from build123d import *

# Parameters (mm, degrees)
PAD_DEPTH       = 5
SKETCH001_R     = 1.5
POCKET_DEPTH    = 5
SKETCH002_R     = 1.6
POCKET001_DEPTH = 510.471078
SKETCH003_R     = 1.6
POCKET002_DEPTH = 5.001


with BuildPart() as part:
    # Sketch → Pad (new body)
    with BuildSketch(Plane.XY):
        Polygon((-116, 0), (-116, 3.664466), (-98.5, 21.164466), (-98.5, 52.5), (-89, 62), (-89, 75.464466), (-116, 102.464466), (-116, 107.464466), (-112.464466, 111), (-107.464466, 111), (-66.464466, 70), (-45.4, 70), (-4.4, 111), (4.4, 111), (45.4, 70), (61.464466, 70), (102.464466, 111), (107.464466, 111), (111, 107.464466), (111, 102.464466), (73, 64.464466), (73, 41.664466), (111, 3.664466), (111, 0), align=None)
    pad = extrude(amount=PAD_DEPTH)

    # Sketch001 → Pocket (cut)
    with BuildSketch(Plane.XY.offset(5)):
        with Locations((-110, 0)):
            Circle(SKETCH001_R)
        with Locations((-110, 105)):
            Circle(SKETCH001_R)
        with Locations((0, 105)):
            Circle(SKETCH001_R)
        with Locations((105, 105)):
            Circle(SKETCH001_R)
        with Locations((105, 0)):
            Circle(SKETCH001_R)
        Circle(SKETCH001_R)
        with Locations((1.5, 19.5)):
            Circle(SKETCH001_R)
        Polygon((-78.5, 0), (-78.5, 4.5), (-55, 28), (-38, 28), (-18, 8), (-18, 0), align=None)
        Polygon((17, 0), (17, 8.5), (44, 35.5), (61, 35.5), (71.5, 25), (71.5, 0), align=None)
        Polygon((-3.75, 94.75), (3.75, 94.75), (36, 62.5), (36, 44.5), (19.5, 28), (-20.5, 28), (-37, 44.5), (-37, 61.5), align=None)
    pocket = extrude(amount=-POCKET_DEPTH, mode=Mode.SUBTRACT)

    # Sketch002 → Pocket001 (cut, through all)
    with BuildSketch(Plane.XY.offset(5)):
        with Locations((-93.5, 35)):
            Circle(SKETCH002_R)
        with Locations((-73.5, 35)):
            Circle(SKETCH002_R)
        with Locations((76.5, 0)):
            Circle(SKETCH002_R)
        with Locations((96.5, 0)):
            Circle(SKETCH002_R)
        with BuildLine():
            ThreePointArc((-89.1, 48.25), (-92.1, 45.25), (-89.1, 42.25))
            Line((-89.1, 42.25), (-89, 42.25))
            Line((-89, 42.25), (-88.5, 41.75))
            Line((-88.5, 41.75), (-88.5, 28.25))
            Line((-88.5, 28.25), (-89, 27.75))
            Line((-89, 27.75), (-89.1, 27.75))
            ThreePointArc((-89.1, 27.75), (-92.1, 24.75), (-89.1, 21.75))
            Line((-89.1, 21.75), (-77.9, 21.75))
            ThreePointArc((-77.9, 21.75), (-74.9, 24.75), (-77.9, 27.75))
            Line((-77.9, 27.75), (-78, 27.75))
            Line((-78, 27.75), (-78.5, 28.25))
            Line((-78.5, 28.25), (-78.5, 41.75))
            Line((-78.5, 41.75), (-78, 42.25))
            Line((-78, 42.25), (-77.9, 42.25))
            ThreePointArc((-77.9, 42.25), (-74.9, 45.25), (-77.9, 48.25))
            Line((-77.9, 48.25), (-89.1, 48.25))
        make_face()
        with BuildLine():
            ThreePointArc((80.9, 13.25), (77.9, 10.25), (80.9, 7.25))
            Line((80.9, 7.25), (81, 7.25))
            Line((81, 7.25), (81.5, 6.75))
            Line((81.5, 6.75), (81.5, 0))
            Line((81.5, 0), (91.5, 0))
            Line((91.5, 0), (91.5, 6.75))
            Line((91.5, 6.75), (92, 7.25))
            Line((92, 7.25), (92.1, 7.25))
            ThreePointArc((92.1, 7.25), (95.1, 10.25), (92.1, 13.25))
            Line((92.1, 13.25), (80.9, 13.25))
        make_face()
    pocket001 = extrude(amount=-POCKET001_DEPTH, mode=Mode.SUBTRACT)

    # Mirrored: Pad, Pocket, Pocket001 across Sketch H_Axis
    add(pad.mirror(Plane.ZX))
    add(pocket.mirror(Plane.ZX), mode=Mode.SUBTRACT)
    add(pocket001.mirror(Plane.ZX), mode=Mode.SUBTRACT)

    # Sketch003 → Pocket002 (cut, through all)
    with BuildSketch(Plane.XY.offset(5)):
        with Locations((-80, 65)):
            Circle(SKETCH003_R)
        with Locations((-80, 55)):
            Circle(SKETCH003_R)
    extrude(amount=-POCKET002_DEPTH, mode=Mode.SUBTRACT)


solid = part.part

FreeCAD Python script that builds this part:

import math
import FreeCAD as App
import Part
import Sketcher

V = App.Vector

doc = App.newDocument("Part")
body = doc.addObject("PartDesign::Body", "Body")

# Sketch on XY plane
sketch1 = doc.addObject("Sketcher::SketchObject", "Sketch")
body.addObject(sketch1)
sketch1.AttachmentSupport = (doc.XY_Plane, [""])
sketch1.MapMode = "FlatFace"
sketch1.addGeometry([
    Part.LineSegment(V(-116, 3.7, 0), V(-116, 0, 0)),  # 0
    Part.LineSegment(V(-116, 0, 0), V(111, 0, 0)),  # 1
    Part.LineSegment(V(111, 0, 0), V(111, 3.7, 0)),  # 2
    Part.LineSegment(V(111, 3.7, 0), V(73, 41.7, 0)),  # 3
    Part.LineSegment(V(73, 41.7, 0), V(73, 64.5, 0)),  # 4
    Part.LineSegment(V(73, 64.5, 0), V(111, 102.5, 0)),  # 5
    Part.LineSegment(V(111, 102.5, 0), V(111, 107.5, 0)),  # 6
    Part.LineSegment(V(111, 107.5, 0), V(107.5, 111, 0)),  # 7
    Part.LineSegment(V(107.5, 111, 0), V(102.5, 111, 0)),  # 8
    Part.LineSegment(V(102.5, 111, 0), V(61.5, 70, 0)),  # 9
    Part.LineSegment(V(61.5, 70, 0), V(45.4, 70, 0)),  # 10
    Part.LineSegment(V(45.4, 70, 0), V(4.4, 111, 0)),  # 11
    Part.LineSegment(V(4.4, 111, 0), V(-4.4, 111, 0)),  # 12
    Part.LineSegment(V(-4.4, 111, 0), V(-45.4, 70, 0)),  # 13
    Part.LineSegment(V(-45.4, 70, 0), V(-66.5, 70, 0)),  # 14
    Part.LineSegment(V(-66.5, 70, 0), V(-107.5, 111, 0)),  # 15
    Part.LineSegment(V(-107.5, 111, 0), V(-112.5, 111, 0)),  # 16
    Part.LineSegment(V(-112.5, 111, 0), V(-116, 107.5, 0)),  # 17
    Part.LineSegment(V(-116, 107.5, 0), V(-116, 102.5, 0)),  # 18
    Part.LineSegment(V(-116, 102.5, 0), V(-89, 75.5, 0)),  # 19
    Part.LineSegment(V(-89, 75.5, 0), V(-89, 62, 0)),  # 20
    Part.LineSegment(V(-89, 62, 0), V(-98.5, 52.5, 0)),  # 21
    Part.LineSegment(V(-98.5, 52.5, 0), V(-98.5, 21.2, 0)),  # 22
    Part.LineSegment(V(-98.5, 21.2, 0), V(-116, 3.7, 0)),  # 23
], False)
sketch1.addConstraint([
    Sketcher.Constraint("Coincident", 0, 2, 1, 1),
    Sketcher.Constraint("Coincident", 1, 2, 2, 1),
    Sketcher.Constraint("Coincident", 2, 2, 3, 1),
    Sketcher.Constraint("Coincident", 3, 2, 4, 1),
    Sketcher.Constraint("Coincident", 4, 2, 5, 1),
    Sketcher.Constraint("Coincident", 5, 2, 6, 1),
    Sketcher.Constraint("Coincident", 6, 2, 7, 1),
    Sketcher.Constraint("Coincident", 7, 2, 8, 1),
    Sketcher.Constraint("Coincident", 8, 2, 9, 1),
    Sketcher.Constraint("Coincident", 9, 2, 10, 1),
    Sketcher.Constraint("Coincident", 10, 2, 11, 1),
    Sketcher.Constraint("Coincident", 11, 2, 12, 1),
    Sketcher.Constraint("Coincident", 12, 2, 13, 1),
    Sketcher.Constraint("Coincident", 13, 2, 14, 1),
    Sketcher.Constraint("Coincident", 14, 2, 15, 1),
    Sketcher.Constraint("Coincident", 15, 2, 16, 1),
    Sketcher.Constraint("Coincident", 16, 2, 17, 1),
    Sketcher.Constraint("Coincident", 17, 2, 18, 1),
    Sketcher.Constraint("Coincident", 18, 2, 19, 1),
    Sketcher.Constraint("Coincident", 19, 2, 20, 1),
    Sketcher.Constraint("Coincident", 20, 2, 21, 1),
    Sketcher.Constraint("Coincident", 21, 2, 22, 1),
    Sketcher.Constraint("Coincident", 22, 2, 23, 1),
    Sketcher.Constraint("Coincident", 23, 2, 0, 1),
    Sketcher.Constraint("Vertical", 0),
    Sketcher.Constraint("Horizontal", 1),
    Sketcher.Constraint("Vertical", 2),
    Sketcher.Constraint("Vertical", 4),
    Sketcher.Constraint("Vertical", 6),
    Sketcher.Constraint("Horizontal", 8),
    Sketcher.Constraint("Horizontal", 10),
    Sketcher.Constraint("Horizontal", 12),
    Sketcher.Constraint("Horizontal", 14),
    Sketcher.Constraint("Horizontal", 16),
    Sketcher.Constraint("Vertical", 18),
    Sketcher.Constraint("Vertical", 20),
    Sketcher.Constraint("Vertical", 22),
    Sketcher.Constraint("Symmetric", 10, 2, 13, 2, -2),
    Sketcher.Constraint("Symmetric", 7, 2, 15, 2, -2),
    Sketcher.Constraint("PointOnObject", 0, 2, -1),
    Sketcher.Constraint("Perpendicular", 3, 5),
    Sketcher.Constraint("Perpendicular", 5, 7),
    Sketcher.Constraint("Perpendicular", 7, 9),
    Sketcher.Constraint("Perpendicular", 9, 11),
    Sketcher.Constraint("Perpendicular", 11, 13),
    Sketcher.Constraint("Perpendicular", 13, 15),
    Sketcher.Constraint("Perpendicular", 15, 17),
    Sketcher.Constraint("Perpendicular", 17, 19),
    Sketcher.Constraint("Perpendicular", 19, 21),
    Sketcher.Constraint("Parallel", 21, 23),
    Sketcher.Constraint("Horizontal", 8, 2, 11, 2),
    Sketcher.Constraint("Horizontal", 6, 2, 17, 2),
    Sketcher.Constraint("Horizontal", 5, 2, 18, 2),
    Sketcher.Constraint("Horizontal", 2, 2, 23, 2),
    Sketcher.Constraint("Vertical", 2, 2, 5, 2),
    Sketcher.Constraint("Vertical", 0, 2, 17, 2),
    Sketcher.Constraint("Equal", 8, 16),
    Sketcher.Constraint("Equal", 16, 6),
    Sketcher.Constraint("Equal", 3, 5),
    Sketcher.Constraint("DistanceX", 1, 1, 1, 2, 227.0),
    Sketcher.Constraint("DistanceX", 8, 2, 8, 1, 5.0),
    Sketcher.Constraint("Distance", 7, 5.0),
    Sketcher.Constraint("DistanceX", 12, 2, 12, 1, 8.8),
    Sketcher.Constraint("DistanceY", 4, 1, 4, 2, 22.8),
    Sketcher.Constraint("DistanceX", -1, 1, 3, 2, 73.0),
    Sketcher.Constraint("DistanceY", -1, 1, 7, 2, 111.0),
    Sketcher.Constraint("DistanceY", -1, 1, 9, 2, 70.0),
    Sketcher.Constraint("DistanceX", 19, 2, -1, 1, 89.0),
    Sketcher.Constraint("DistanceY", -1, 1, 20, 2, 62.0),
    Sketcher.Constraint("DistanceX", 21, 2, -1, 1, 98.5),
])
pad1 = doc.addObject("PartDesign::Pad", "Pad")
body.addObject(pad1)
pad1.Profile = sketch1
pad1.Length = 5

# Sketch on XY plane
sketch2 = doc.addObject("Sketcher::SketchObject", "Sketch001")
body.addObject(sketch2)
sketch2.AttachmentSupport = (doc.XY_Plane, [""])
sketch2.MapMode = "FlatFace"
sketch2.AttachmentOffset = App.Placement(V(0, 0, 5), App.Rotation())
sketch2.addGeometry([
    Part.Circle(V(-110, 0, 0), V(0, 0, 1), 1.5),  # 0
    Part.Circle(V(-110, 105, 0), V(0, 0, 1), 1.5),  # 1
    Part.Circle(V(0, 105, 0), V(0, 0, 1), 1.5),  # 2
    Part.Circle(V(105, 105, 0), V(0, 0, 1), 1.5),  # 3
    Part.Circle(V(105, 0, 0), V(0, 0, 1), 1.5),  # 4
    Part.Circle(V(0, 0, 0), V(0, 0, 1), 1.5),  # 5
    Part.Circle(V(1.5, 19.5, 0), V(0, 0, 1), 1.5),  # 6
    Part.LineSegment(V(-78.5, 4.5, 0), V(-78.5, 0, 0)),  # 7
    Part.LineSegment(V(-78.5, 0, 0), V(-18, 0, 0)),  # 8
    Part.LineSegment(V(-18, 0, 0), V(-18, 8, 0)),  # 9
    Part.LineSegment(V(-18, 8, 0), V(-38, 28, 0)),  # 10
    Part.LineSegment(V(-38, 28, 0), V(-55, 28, 0)),  # 11
    Part.LineSegment(V(-55, 28, 0), V(-78.5, 4.5, 0)),  # 12
    Part.LineSegment(V(17, 8.5, 0), V(17, 0, 0)),  # 13
    Part.LineSegment(V(17, 0, 0), V(71.5, 0, 0)),  # 14
    Part.LineSegment(V(71.5, 0, 0), V(71.5, 25, 0)),  # 15
    Part.LineSegment(V(71.5, 25, 0), V(61, 35.5, 0)),  # 16
    Part.LineSegment(V(61, 35.5, 0), V(44, 35.5, 0)),  # 17
    Part.LineSegment(V(44, 35.5, 0), V(17, 8.5, 0)),  # 18
    Part.LineSegment(V(3.8, 94.8, 0), V(-3.8, 94.8, 0)),  # 19
    Part.LineSegment(V(-3.8, 94.8, 0), V(-37, 61.5, 0)),  # 20
    Part.LineSegment(V(-37, 61.5, 0), V(-37, 44.5, 0)),  # 21
    Part.LineSegment(V(-37, 44.5, 0), V(-20.5, 28, 0)),  # 22
    Part.LineSegment(V(-20.5, 28, 0), V(19.5, 28, 0)),  # 23
    Part.LineSegment(V(19.5, 28, 0), V(36, 44.5, 0)),  # 24
    Part.LineSegment(V(36, 44.5, 0), V(36, 62.5, 0)),  # 25
    Part.LineSegment(V(36, 62.5, 0), V(3.8, 94.8, 0)),  # 26
], False)
sketch2.addConstraint([
    Sketcher.Constraint("Coincident", 7, 2, 8, 1),
    Sketcher.Constraint("Coincident", 8, 2, 9, 1),
    Sketcher.Constraint("Coincident", 9, 2, 10, 1),
    Sketcher.Constraint("Coincident", 10, 2, 11, 1),
    Sketcher.Constraint("Coincident", 11, 2, 12, 1),
    Sketcher.Constraint("Coincident", 12, 2, 7, 1),
    Sketcher.Constraint("Coincident", 13, 2, 14, 1),
    Sketcher.Constraint("Coincident", 14, 2, 15, 1),
    Sketcher.Constraint("Coincident", 15, 2, 16, 1),
    Sketcher.Constraint("Coincident", 16, 2, 17, 1),
    Sketcher.Constraint("Coincident", 17, 2, 18, 1),
    Sketcher.Constraint("Coincident", 18, 2, 13, 1),
    Sketcher.Constraint("Coincident", 19, 2, 20, 1),
    Sketcher.Constraint("Coincident", 20, 2, 21, 1),
    Sketcher.Constraint("Coincident", 21, 2, 22, 1),
    Sketcher.Constraint("Coincident", 22, 2, 23, 1),
    Sketcher.Constraint("Coincident", 23, 2, 24, 1),
    Sketcher.Constraint("Coincident", 24, 2, 25, 1),
    Sketcher.Constraint("Coincident", 25, 2, 26, 1),
    Sketcher.Constraint("Coincident", 26, 2, 19, 1),
    Sketcher.Constraint("Vertical", 7),
    Sketcher.Constraint("Horizontal", 8),
    Sketcher.Constraint("Vertical", 9),
    Sketcher.Constraint("Horizontal", 11),
    Sketcher.Constraint("Vertical", 13),
    Sketcher.Constraint("Horizontal", 14),
    Sketcher.Constraint("Vertical", 15),
    Sketcher.Constraint("Horizontal", 17),
    Sketcher.Constraint("Horizontal", 19),
    Sketcher.Constraint("Vertical", 21),
    Sketcher.Constraint("Horizontal", 23),
    Sketcher.Constraint("Vertical", 25),
    Sketcher.Constraint("Coincident", 5, 3, -1, 1),
    Sketcher.Constraint("Equal", 0, 1),
    Sketcher.Constraint("Equal", 1, 2),
    Sketcher.Constraint("Equal", 2, 3),
    Sketcher.Constraint("Equal", 3, 4),
    Sketcher.Constraint("Equal", 4, 5),
    Sketcher.Constraint("Equal", 5, 6),
    Sketcher.Constraint("PointOnObject", 0, 3, -1),
    Sketcher.Constraint("PointOnObject", 2, 3, -2),
    Sketcher.Constraint("PointOnObject", 4, 3, -1),
    Sketcher.Constraint("PointOnObject", 7, 2, -1),
    Sketcher.Constraint("PointOnObject", 13, 2, -1),
    Sketcher.Constraint("Perpendicular", 10, 12),
    Sketcher.Constraint("Perpendicular", 12, 16),
    Sketcher.Constraint("Perpendicular", 16, 18),
    Sketcher.Constraint("Parallel", 18, 20),
    Sketcher.Constraint("Perpendicular", 20, 22),
    Sketcher.Constraint("Perpendicular", 22, 24),
    Sketcher.Constraint("Perpendicular", 24, 26),
    Sketcher.Constraint("Horizontal", 1, 3, 2, 3),
    Sketcher.Constraint("Horizontal", 2, 3, 3, 3),
    Sketcher.Constraint("Horizontal", 11, 2, 22, 2),
    Sketcher.Constraint("Horizontal", 21, 2, 24, 2),
    Sketcher.Constraint("Vertical", 0, 3, 1, 3),
    Sketcher.Constraint("Vertical", 3, 3, 4, 3),
    Sketcher.Constraint("Equal", 11, 17),
    Sketcher.Constraint("Equal", 17, 21),
    Sketcher.Constraint("Equal", 22, 24),
    Sketcher.Constraint("Diameter", 0, 3.0),
    Sketcher.Constraint("DistanceX", 11, 2, 11, 1, 17.0),
    Sketcher.Constraint("DistanceX", 23, 1, 23, 2, 40.0),
    Sketcher.Constraint("DistanceY", 9, 1, 9, 2, 8.0),
    Sketcher.Constraint("DistanceY", 15, 1, 15, 2, 25.0),
    Sketcher.Constraint("DistanceY", 25, 1, 25, 2, 18.0),
    Sketcher.Constraint("DistanceX", 8, 1, 8, 2, 60.5),
    Sketcher.Constraint("DistanceX", 14, 1, 14, 2, 54.5),
    Sketcher.Constraint("DistanceX", 19, 2, 19, 1, 7.5),
    Sketcher.Constraint("DistanceY", 7, 2, 7, 1, 4.5),
    Sketcher.Constraint("DistanceY", 13, 2, 13, 1, 8.5),
    Sketcher.Constraint("DistanceX", 0, 3, -1, 1, 110.0),
    Sketcher.Constraint("DistanceY", -1, 1, 1, 3, 105.0),
    Sketcher.Constraint("DistanceX", -1, 1, 3, 3, 105.0),
    Sketcher.Constraint("DistanceX", 8, 2, -1, 1, 18.0),
    Sketcher.Constraint("DistanceX", -1, 1, 13, 2, 17.0),
    Sketcher.Constraint("DistanceX", 20, 2, -1, 1, 37.0),
    Sketcher.Constraint("DistanceX", -1, 1, 24, 2, 36.0),
    Sketcher.Constraint("DistanceX", 7, 2, 6, 3, 80.0),
    Sketcher.Constraint("DistanceY", 6, 3, 16, 2, 16.0),
])
pocket1 = doc.addObject("PartDesign::Pocket", "Pocket")
body.addObject(pocket1)
pocket1.Profile = sketch2
pocket1.Length = 5

# Sketch on XY plane
sketch3 = doc.addObject("Sketcher::SketchObject", "Sketch002")
body.addObject(sketch3)
sketch3.AttachmentSupport = (doc.XY_Plane, [""])
sketch3.MapMode = "FlatFace"
sketch3.AttachmentOffset = App.Placement(V(0, 0, 5), App.Rotation())
sketch3.addGeometry([
    Part.Circle(V(-93.5, 35, 0), V(0, 0, 1), 1.6),  # 0
    Part.Circle(V(-73.5, 35, 0), V(0, 0, 1), 1.6),  # 1
    Part.Circle(V(76.5, 0, 0), V(0, 0, 1), 1.6),  # 2
    Part.Circle(V(96.5, 0, 0), V(0, 0, 1), 1.6),  # 3
    Part.ArcOfCircle(Part.Circle(V(-89.1, 45.25, 0), V(0, 0, 1), 3), math.radians(90), math.radians(270)),  # 4
    Part.LineSegment(V(-89.1, 42.25, 0), V(-89, 42.25, 0)),  # 5
    Part.LineSegment(V(-89, 42.25, 0), V(-88.5, 41.75, 0)),  # 6
    Part.LineSegment(V(-88.5, 41.75, 0), V(-88.5, 28.25, 0)),  # 7
    Part.LineSegment(V(-88.5, 28.25, 0), V(-89, 27.75, 0)),  # 8
    Part.LineSegment(V(-89, 27.75, 0), V(-89.1, 27.75, 0)),  # 9
    Part.ArcOfCircle(Part.Circle(V(-89.1, 24.75, 0), V(0, 0, 1), 3), math.radians(90), math.radians(270)),  # 10
    Part.LineSegment(V(-89.1, 21.75, 0), V(-77.9, 21.75, 0)),  # 11
    Part.ArcOfCircle(Part.Circle(V(-77.9, 24.75, 0), V(0, 0, 1), 3), math.radians(-90), math.radians(90)),  # 12
    Part.LineSegment(V(-77.9, 27.75, 0), V(-78, 27.75, 0)),  # 13
    Part.LineSegment(V(-78, 27.75, 0), V(-78.5, 28.25, 0)),  # 14
    Part.LineSegment(V(-78.5, 28.25, 0), V(-78.5, 41.75, 0)),  # 15
    Part.LineSegment(V(-78.5, 41.75, 0), V(-78, 42.25, 0)),  # 16
    Part.LineSegment(V(-78, 42.25, 0), V(-77.9, 42.25, 0)),  # 17
    Part.ArcOfCircle(Part.Circle(V(-77.9, 45.25, 0), V(0, 0, 1), 3), math.radians(-90), math.radians(90)),  # 18
    Part.LineSegment(V(-77.9, 48.25, 0), V(-89.1, 48.25, 0)),  # 19
    Part.ArcOfCircle(Part.Circle(V(80.9, 10.25, 0), V(0, 0, 1), 3), math.radians(90), math.radians(270)),  # 20
    Part.LineSegment(V(80.9, 7.25, 0), V(81, 7.25, 0)),  # 21
    Part.LineSegment(V(81, 7.25, 0), V(81.5, 6.75, 0)),  # 22
    Part.LineSegment(V(81.5, 6.75, 0), V(81.5, 0, 0)),  # 23
    Part.LineSegment(V(81.5, 0, 0), V(91.5, 0, 0)),  # 24
    Part.LineSegment(V(91.5, 0, 0), V(91.5, 6.75, 0)),  # 25
    Part.LineSegment(V(91.5, 6.75, 0), V(92, 7.25, 0)),  # 26
    Part.LineSegment(V(92, 7.25, 0), V(92.1, 7.25, 0)),  # 27
    Part.ArcOfCircle(Part.Circle(V(92.1, 10.25, 0), V(0, 0, 1), 3), math.radians(-90), math.radians(90)),  # 28
    Part.LineSegment(V(92.1, 13.25, 0), V(80.9, 13.25, 0)),  # 29
], False)
sketch3.addConstraint([
    Sketcher.Constraint("Tangent", 4, 2, 5, 1),
    Sketcher.Constraint("Coincident", 5, 2, 6, 1),
    Sketcher.Constraint("Coincident", 6, 2, 7, 1),
    Sketcher.Constraint("Coincident", 7, 2, 8, 1),
    Sketcher.Constraint("Coincident", 8, 2, 9, 1),
    Sketcher.Constraint("Tangent", 9, 2, 10, 1),
    Sketcher.Constraint("Tangent", 10, 2, 11, 1),
    Sketcher.Constraint("Tangent", 11, 2, 12, 1),
    Sketcher.Constraint("Tangent", 12, 2, 13, 1),
    Sketcher.Constraint("Coincident", 13, 2, 14, 1),
    Sketcher.Constraint("Coincident", 14, 2, 15, 1),
    Sketcher.Constraint("Coincident", 15, 2, 16, 1),
    Sketcher.Constraint("Coincident", 16, 2, 17, 1),
    Sketcher.Constraint("Tangent", 17, 2, 18, 1),
    Sketcher.Constraint("Tangent", 18, 2, 19, 1),
    Sketcher.Constraint("Tangent", 19, 2, 4, 1),
    Sketcher.Constraint("Tangent", 20, 2, 21, 1),
    Sketcher.Constraint("Coincident", 21, 2, 22, 1),
    Sketcher.Constraint("Coincident", 22, 2, 23, 1),
    Sketcher.Constraint("Coincident", 23, 2, 24, 1),
    Sketcher.Constraint("Coincident", 24, 2, 25, 1),
    Sketcher.Constraint("Coincident", 25, 2, 26, 1),
    Sketcher.Constraint("Coincident", 26, 2, 27, 1),
    Sketcher.Constraint("Tangent", 27, 2, 28, 1),
    Sketcher.Constraint("Tangent", 28, 2, 29, 1),
    Sketcher.Constraint("Tangent", 29, 2, 20, 1),
    Sketcher.Constraint("Horizontal", 5),
    Sketcher.Constraint("Vertical", 7),
    Sketcher.Constraint("Horizontal", 9),
    Sketcher.Constraint("Horizontal", 11),
    Sketcher.Constraint("Horizontal", 13),
    Sketcher.Constraint("Vertical", 15),
    Sketcher.Constraint("Horizontal", 17),
    Sketcher.Constraint("Horizontal", 19),
    Sketcher.Constraint("Horizontal", 21),
    Sketcher.Constraint("Vertical", 23),
    Sketcher.Constraint("Horizontal", 24),
    Sketcher.Constraint("Vertical", 25),
    Sketcher.Constraint("Horizontal", 27),
    Sketcher.Constraint("Horizontal", 29),
    Sketcher.Constraint("Equal", 0, 1),
    Sketcher.Constraint("Equal", 1, 2),
    Sketcher.Constraint("Equal", 2, 3),
    Sketcher.Constraint("Equal", 4, 10),
    Sketcher.Constraint("Equal", 10, 12),
    Sketcher.Constraint("Equal", 12, 18),
    Sketcher.Constraint("Equal", 18, 20),
    Sketcher.Constraint("Equal", 20, 28),
    Sketcher.Constraint("PointOnObject", 2, 3, -1),
    Sketcher.Constraint("PointOnObject", 3, 3, -1),
    Sketcher.Constraint("PointOnObject", 23, 2, -1),
    Sketcher.Constraint("Perpendicular", 6, 8),
    Sketcher.Constraint("Perpendicular", 8, 14),
    Sketcher.Constraint("Perpendicular", 14, 16),
    Sketcher.Constraint("Perpendicular", 16, 22),
    Sketcher.Constraint("Perpendicular", 22, 26),
    Sketcher.Constraint("Horizontal", 0, 3, 1, 3),
    Sketcher.Constraint("Horizontal", 7, 2, 14, 2),
    Sketcher.Constraint("Horizontal", 6, 2, 15, 2),
    Sketcher.Constraint("Horizontal", 22, 2, 25, 2),
    Sketcher.Constraint("Vertical", 4, 3, 10, 3),
    Sketcher.Constraint("Vertical", 12, 3, 18, 3),
    Sketcher.Constraint("Vertical", 5, 2, 8, 2),
    Sketcher.Constraint("Vertical", 13, 2, 16, 2),
    Sketcher.Constraint("Equal", 9, 13),
    Sketcher.Constraint("Equal", 17, 21),
    Sketcher.Constraint("Equal", 21, 27),
    Sketcher.Constraint("Equal", 19, 29),
    Sketcher.Constraint("Equal", 16, 22),
    Sketcher.Constraint("Radius", 4, 3.0),
    Sketcher.Constraint("Diameter", 0, 3.2),
    Sketcher.Constraint("DistanceX", 24, 1, 24, 2, 10.0),
    Sketcher.Constraint("DistanceX", 5, 1, 5, 2, 0.1),
    Sketcher.Constraint("DistanceX", 11, 1, 11, 2, 11.2),
    Sketcher.Constraint("DistanceY", 7, 2, 7, 1, 13.5),
    Sketcher.Constraint("DistanceY", -1, 1, 0, 3, 35.0),
    Sketcher.Constraint("DistanceX", 5, 2, -1, 1, 89.0),
    Sketcher.Constraint("DistanceX", -1, 1, 21, 2, 81.0),
    Sketcher.Constraint("DistanceX", 0, 3, 1, 3, 20.0),
    Sketcher.Constraint("DistanceX", 1, 3, 2, 3, 150.0),
    Sketcher.Constraint("DistanceX", 2, 3, 3, 3, 20.0),
    Sketcher.Constraint("DistanceY", 20, 3, 18, 3, 35.0),
    Sketcher.Constraint("DistanceX", 0, 3, 6, 2, 5.0),
    Sketcher.Constraint("DistanceY", 23, 2, 23, 1, 6.75),
])
pocket2 = doc.addObject("PartDesign::Pocket", "Pocket001")
body.addObject(pocket2)
pocket2.Profile = sketch3
pocket2.Type = "ThroughAll"
doc.recompute()

mirrored = doc.addObject("PartDesign::Mirrored", "Mirrored")
body.addObject(mirrored)
mirrored.Originals = [pad1, pocket1, pocket2]
mirrored.MirrorPlane = (doc.XZ_Plane, [""])
body.Tip = mirrored

# Sketch on XY plane
sketch4 = doc.addObject("Sketcher::SketchObject", "Sketch003")
body.addObject(sketch4)
sketch4.AttachmentSupport = (doc.XY_Plane, [""])
sketch4.MapMode = "FlatFace"
sketch4.AttachmentOffset = App.Placement(V(0, 0, 5), App.Rotation())
sketch4.addGeometry([
    Part.Circle(V(-80, 65, 0), V(0, 0, 1), 1.6),
    Part.Circle(V(-80, 55, 0), V(0, 0, 1), 1.6),
], False)
sketch4.addConstraint([
    Sketcher.Constraint("Equal", 0, 1),
    Sketcher.Constraint("Vertical", 0, 3, 1, 3),
    Sketcher.Constraint("Diameter", 0, 3.2),
    Sketcher.Constraint("DistanceX", 0, 3, -1, 1, 80.0),
    Sketcher.Constraint("DistanceY", -1, 1, 0, 3, 65.0),
    Sketcher.Constraint("DistanceY", -1, 1, 1, 3, 55.0),
])
pocket3 = doc.addObject("PartDesign::Pocket", "Pocket002")
body.addObject(pocket3)
pocket3.Profile = sketch4
pocket3.Type = "ThroughAll"

doc.recompute()
